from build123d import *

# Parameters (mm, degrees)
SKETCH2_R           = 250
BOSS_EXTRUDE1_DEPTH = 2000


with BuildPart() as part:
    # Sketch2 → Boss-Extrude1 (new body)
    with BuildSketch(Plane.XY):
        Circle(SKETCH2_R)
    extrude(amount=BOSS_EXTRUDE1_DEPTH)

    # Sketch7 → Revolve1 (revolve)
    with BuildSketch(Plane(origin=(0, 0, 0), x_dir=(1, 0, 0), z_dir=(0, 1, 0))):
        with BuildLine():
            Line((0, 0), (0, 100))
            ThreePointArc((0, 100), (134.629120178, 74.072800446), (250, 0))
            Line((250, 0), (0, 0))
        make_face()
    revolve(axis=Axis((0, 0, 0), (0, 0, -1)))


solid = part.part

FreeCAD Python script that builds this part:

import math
import FreeCAD as App
import Part
import Sketcher
from FreeCAD import Vector

doc = App.newDocument("Part")
body = doc.addObject("PartDesign::Body", "Body")

# Sketch on XY plane
sketch1 = doc.addObject("Sketcher::SketchObject", "Sketch")
body.addObject(sketch1)
sketch1.AttachmentSupport = (doc.XY_Plane, [""])
sketch1.MapMode = "FlatFace"
sketch1.addGeometry(Part.Circle(Vector(0, 0, 0), Vector(0, 0, 1), 250), False)
sketch1.addConstraint(Sketcher.Constraint("Coincident", 0, 3, -1, 1))
sketch1.addConstraint(Sketcher.Constraint("Diameter", 0, 500.0))
pad1 = doc.addObject("PartDesign::Pad", "Pad")
body.addObject(pad1)
pad1.Profile = sketch1
pad1.Length = 2000

# Sketch on XZ plane
sketch2 = doc.addObject("Sketcher::SketchObject", "Sketch001")
body.addObject(sketch2)
sketch2.AttachmentSupport = (doc.XZ_Plane, [""])
sketch2.MapMode = "FlatFace"
sketch2.addGeometry(Part.LineSegment(Vector(0, -100, 0), Vector(0, 0, 0)), False)
sketch2.addGeometry(Part.LineSegment(Vector(0, 0, 0), Vector(250, 0, 0)), False)
sketch2.addGeometry(Part.ArcOfCircle(Part.Circle(Vector(0, 262.5, 0), Vector(0, 0, 1), 362.5), math.radians(-90), math.radians(-46.397181)), False)
sketch2.addConstraint(Sketcher.Constraint("Coincident", 0, 2, 1, 1))
sketch2.addConstraint(Sketcher.Constraint("Coincident", 1, 2, 2, 2))
sketch2.addConstraint(Sketcher.Constraint("Coincident", 2, 1, 0, 1))
sketch2.addConstraint(Sketcher.Constraint("Vertical", 0))
sketch2.addConstraint(Sketcher.Constraint("Horizontal", 1))
sketch2.addConstraint(Sketcher.Constraint("Coincident", 0, 2, -1, 1))
sketch2.addConstraint(Sketcher.Constraint("PointOnObject", 2, 3, -2))
sketch2.addConstraint(Sketcher.Constraint("Radius", 2, 362.5))
sketch2.addConstraint(Sketcher.Constraint("DistanceX", 1, 1, 1, 2, 250.0))
revolution = doc.addObject("PartDesign::Revolution", "Revolution")
body.addObject(revolution)
revolution.Profile = sketch2
revolution.ReferenceAxis = (sketch2, ["V_Axis"])
revolution.Angle = 360

doc.recompute()
